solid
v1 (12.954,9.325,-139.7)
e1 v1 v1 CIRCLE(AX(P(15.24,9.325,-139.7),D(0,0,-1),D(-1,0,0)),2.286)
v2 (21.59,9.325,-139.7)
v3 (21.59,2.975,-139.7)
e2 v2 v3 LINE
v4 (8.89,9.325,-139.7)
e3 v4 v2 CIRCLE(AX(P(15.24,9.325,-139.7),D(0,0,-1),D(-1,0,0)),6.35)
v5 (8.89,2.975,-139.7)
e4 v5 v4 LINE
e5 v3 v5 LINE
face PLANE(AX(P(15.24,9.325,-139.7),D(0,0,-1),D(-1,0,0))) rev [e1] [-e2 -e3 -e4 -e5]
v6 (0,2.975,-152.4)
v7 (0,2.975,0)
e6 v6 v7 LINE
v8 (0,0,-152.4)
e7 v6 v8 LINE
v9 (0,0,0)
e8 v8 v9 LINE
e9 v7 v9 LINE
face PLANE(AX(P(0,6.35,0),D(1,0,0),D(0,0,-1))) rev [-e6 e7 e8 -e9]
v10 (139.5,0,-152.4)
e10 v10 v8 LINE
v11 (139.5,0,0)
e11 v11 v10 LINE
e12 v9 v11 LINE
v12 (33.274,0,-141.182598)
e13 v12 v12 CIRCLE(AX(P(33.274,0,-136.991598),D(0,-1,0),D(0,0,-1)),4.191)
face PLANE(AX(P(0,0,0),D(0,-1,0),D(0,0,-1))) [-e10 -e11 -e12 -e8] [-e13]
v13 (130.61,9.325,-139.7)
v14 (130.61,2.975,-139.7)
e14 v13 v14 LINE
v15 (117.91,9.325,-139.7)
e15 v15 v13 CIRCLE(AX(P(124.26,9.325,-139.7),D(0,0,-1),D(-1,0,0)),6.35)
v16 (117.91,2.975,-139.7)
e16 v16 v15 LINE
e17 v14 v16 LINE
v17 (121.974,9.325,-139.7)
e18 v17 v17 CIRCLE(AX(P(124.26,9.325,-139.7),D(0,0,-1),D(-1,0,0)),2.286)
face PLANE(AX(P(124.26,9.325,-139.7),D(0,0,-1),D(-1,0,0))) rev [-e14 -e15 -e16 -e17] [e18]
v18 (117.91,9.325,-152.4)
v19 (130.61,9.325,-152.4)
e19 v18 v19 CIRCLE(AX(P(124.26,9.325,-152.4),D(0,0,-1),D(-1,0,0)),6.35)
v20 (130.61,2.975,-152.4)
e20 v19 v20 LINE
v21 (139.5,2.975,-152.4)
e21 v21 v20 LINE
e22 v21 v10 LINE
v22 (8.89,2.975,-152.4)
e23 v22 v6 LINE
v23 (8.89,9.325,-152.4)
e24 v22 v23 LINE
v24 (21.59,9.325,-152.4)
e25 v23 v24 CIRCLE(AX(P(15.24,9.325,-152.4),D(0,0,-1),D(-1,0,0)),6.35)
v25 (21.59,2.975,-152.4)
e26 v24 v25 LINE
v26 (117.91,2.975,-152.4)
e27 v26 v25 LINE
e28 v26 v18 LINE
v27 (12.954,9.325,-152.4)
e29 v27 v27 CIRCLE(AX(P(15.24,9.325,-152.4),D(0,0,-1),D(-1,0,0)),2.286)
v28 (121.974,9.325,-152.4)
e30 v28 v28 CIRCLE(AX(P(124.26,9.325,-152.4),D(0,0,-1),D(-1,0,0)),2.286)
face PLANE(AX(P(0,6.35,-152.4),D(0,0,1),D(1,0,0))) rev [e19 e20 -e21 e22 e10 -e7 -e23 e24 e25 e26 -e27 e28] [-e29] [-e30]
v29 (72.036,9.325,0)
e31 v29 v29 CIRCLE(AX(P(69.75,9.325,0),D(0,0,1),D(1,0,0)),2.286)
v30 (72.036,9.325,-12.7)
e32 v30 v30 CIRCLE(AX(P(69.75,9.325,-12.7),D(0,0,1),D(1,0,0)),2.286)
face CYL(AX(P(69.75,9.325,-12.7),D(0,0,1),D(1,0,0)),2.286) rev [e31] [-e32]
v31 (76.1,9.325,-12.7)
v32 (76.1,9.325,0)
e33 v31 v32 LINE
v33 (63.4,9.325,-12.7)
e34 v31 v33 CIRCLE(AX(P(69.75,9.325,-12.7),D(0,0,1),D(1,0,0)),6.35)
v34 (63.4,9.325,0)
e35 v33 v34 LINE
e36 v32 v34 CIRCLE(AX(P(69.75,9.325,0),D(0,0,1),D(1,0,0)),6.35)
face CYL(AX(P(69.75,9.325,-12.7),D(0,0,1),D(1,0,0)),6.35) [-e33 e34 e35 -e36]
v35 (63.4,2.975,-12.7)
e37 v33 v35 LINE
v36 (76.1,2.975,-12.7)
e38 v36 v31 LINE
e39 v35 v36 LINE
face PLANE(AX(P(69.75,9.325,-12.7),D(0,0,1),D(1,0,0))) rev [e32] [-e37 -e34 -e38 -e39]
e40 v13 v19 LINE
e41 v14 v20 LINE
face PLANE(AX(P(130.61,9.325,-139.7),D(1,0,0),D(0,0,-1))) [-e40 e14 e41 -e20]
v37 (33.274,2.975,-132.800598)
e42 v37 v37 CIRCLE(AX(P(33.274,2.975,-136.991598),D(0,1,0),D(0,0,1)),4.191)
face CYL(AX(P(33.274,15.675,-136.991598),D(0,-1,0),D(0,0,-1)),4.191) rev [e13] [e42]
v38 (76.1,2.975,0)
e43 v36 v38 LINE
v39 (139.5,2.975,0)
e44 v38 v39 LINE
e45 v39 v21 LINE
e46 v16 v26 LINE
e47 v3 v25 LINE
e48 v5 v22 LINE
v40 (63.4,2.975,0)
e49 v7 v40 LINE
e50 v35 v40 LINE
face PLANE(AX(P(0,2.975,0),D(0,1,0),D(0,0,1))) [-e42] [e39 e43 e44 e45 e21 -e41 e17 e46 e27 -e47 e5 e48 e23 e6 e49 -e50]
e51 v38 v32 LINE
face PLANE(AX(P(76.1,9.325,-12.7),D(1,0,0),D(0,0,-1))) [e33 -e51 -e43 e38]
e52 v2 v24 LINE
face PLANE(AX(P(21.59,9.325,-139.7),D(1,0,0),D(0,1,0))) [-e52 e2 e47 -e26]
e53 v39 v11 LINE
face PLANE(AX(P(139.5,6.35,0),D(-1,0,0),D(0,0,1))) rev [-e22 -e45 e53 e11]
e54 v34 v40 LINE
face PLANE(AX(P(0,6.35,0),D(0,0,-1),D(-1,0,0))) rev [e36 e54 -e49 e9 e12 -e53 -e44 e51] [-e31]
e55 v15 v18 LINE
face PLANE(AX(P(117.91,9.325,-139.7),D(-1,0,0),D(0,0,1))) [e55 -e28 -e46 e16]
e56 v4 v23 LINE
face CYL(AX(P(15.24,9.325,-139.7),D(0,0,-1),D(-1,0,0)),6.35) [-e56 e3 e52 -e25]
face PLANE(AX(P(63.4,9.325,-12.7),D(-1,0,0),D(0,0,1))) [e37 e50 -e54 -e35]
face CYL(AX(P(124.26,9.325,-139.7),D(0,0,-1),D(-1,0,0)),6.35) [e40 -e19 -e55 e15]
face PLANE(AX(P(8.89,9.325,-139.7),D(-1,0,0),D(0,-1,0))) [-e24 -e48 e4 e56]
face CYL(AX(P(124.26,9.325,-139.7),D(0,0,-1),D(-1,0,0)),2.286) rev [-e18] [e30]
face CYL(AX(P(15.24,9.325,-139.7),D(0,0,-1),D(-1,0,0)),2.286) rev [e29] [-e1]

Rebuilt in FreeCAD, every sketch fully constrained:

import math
import FreeCAD as App
import Part
import Sketcher

V = App.Vector
Q = App.Units.Quantity


def add_polygon(sketch, points):
    """Adds a closed chain of lines whose ends are joined by coincident constraints."""
    first, n = sketch.GeometryCount, len(points)
    for a, b in zip(points, points[1:] + points[:1]):
        sketch.addGeometry(Part.LineSegment(App.Vector(*a, 0), App.Vector(*b, 0)), False)
    for i in range(n):
        sketch.addConstraint(Sketcher.Constraint("Coincident", first + i, 2, first + (i + 1) % n, 1))

doc = App.newDocument("Part")
body = doc.addObject("PartDesign::Body", "Body")

sketch1 = doc.addObject("Sketcher::SketchObject", "Sketch")
body.addObject(sketch1)
sketch1.AttachmentSupport = (doc.XZ_Plane, [""])
sketch1.MapMode = "FlatFace"
add_polygon(sketch1, [(0, -152.4), (0, 0), (139.5, 0), (139.5, -152.4)])
sketch1.addConstraint([
    Sketcher.Constraint("Vertical", 0),
    Sketcher.Constraint("Horizontal", 1),
    Sketcher.Constraint("Vertical", 2),
    Sketcher.Constraint("Horizontal", 3),
    Sketcher.Constraint("Coincident", 0, 2, -1, 1),
    Sketcher.Constraint("DistanceY", 0, 1, 0, 2, Q("6 in")),
    Sketcher.Constraint("DistanceX", 1, 1, 1, 2, Q("139.5 mm")),
])
pad1 = doc.addObject("PartDesign::Pad", "Pad")
body.addObject(pad1)
pad1.Profile = sketch1
pad1.Length = Q("0.25 in")
pad1.Reversed = True

sketch2 = doc.addObject("Sketcher::SketchObject", "Sketch001")
body.addObject(sketch2)
sketch2.AttachmentSupport = (doc.XZ_Plane, [""])
sketch2.MapMode = "FlatFace"
sketch2.AttachmentOffset = App.Placement(V(0, 0, -0.25 * 25.4), App.Rotation())
add_polygon(sketch2, [(0, -152.4), (0, 0), (139.5, 0), (139.5, -152.4)])
sketch2.addConstraint([
    Sketcher.Constraint("Vertical", 0),
    Sketcher.Constraint("Horizontal", 1),
    Sketcher.Constraint("Vertical", 2),
    Sketcher.Constraint("Horizontal", 3),
    Sketcher.Constraint("Coincident", 0, 2, -1, 1),
    Sketcher.Constraint("DistanceY", 0, 1, 0, 2, Q("6 in")),
    Sketcher.Constraint("DistanceX", 1, 1, 1, 2, Q("139.5 mm")),
])
pocket1 = doc.addObject("PartDesign::Pocket", "Pocket")
body.addObject(pocket1)
pocket1.Profile = sketch2
pocket1.Length = 3.375
pocket1.Reversed = True

sketch3 = doc.addObject("Sketcher::SketchObject", "Sketch002")
body.addObject(sketch3)
sketch3.AttachmentSupport = (doc.XY_Plane, [""])
sketch3.MapMode = "FlatFace"
sketch3.addGeometry([
    Part.LineSegment(V(63.4, 9.325, 0), V(63.4, 2.975, 0)),
    Part.LineSegment(V(63.4, 2.975, 0), V(76.1, 2.975, 0)),
    Part.LineSegment(V(76.1, 2.975, 0), V(76.1, 9.325, 0)),
    Part.ArcOfCircle(Part.Circle(V(69.75, 9.325, 0), V(0, 0, 1), 6.35), math.radians(0), math.radians(180.000001)),
    Part.Circle(V(69.75, 9.325, 0), V(0, 0, 1), 2.286),
], False)
sketch3.addConstraint([
    Sketcher.Constraint("Coincident", 0, 2, 1, 1),
    Sketcher.Constraint("Coincident", 1, 2, 2, 1),
    Sketcher.Constraint("Tangent", 2, 2, 3, 1),
    Sketcher.Constraint("Tangent", 3, 2, 0, 1),
    Sketcher.Constraint("Vertical", 0),
    Sketcher.Constraint("Horizontal", 1),
    Sketcher.Constraint("Vertical", 2),
    Sketcher.Constraint("Coincident", 4, 3, 3, 3),
    Sketcher.Constraint("Diameter", 4, Q("0.18 in")),
    Sketcher.Constraint("Radius", 3, Q("0.25 in")),
    Sketcher.Constraint("DistanceY", 0, 2, 0, 1, Q("0.25 in")),
    Sketcher.Constraint("DistanceX", -1, 1, 3, 3, Q("69.75 mm")),
    Sketcher.Constraint("DistanceY", -1, 1, 3, 3, Q("9.325 mm")),
])
pad2 = doc.addObject("PartDesign::Pad", "Pad001")
body.addObject(pad2)
pad2.Profile = sketch3
pad2.Length = Q("0.5 in")
pad2.Reversed = True

sketch4 = doc.addObject("Sketcher::SketchObject", "Sketch003")
body.addObject(sketch4)
sketch4.AttachmentSupport = (doc.XY_Plane, [""])
sketch4.MapMode = "FlatFace"
sketch4.AttachmentOffset = App.Placement(V(0, 0, -6 * 25.4), App.Rotation())
sketch4.addGeometry([
    Part.LineSegment(V(130.61, 9.325, 0), V(130.61, 2.975, 0)),
    Part.LineSegment(V(130.61, 2.975, 0), V(117.91, 2.975, 0)),
    Part.LineSegment(V(117.91, 2.975, 0), V(117.91, 9.325, 0)),
    Part.ArcOfCircle(Part.Circle(V(124.26, 9.325, 0), V(0, 0, 1), 6.35), math.radians(0), math.radians(180)),
    Part.Circle(V(124.26, 9.325, 0), V(0, 0, 1), 2.286),
    Part.LineSegment(V(21.59, 9.325, 0), V(21.59, 2.975, 0)),
    Part.LineSegment(V(21.59, 2.975, 0), V(8.89, 2.975, 0)),
    Part.LineSegment(V(8.89, 2.975, 0), V(8.89, 9.325, 0)),
    Part.ArcOfCircle(Part.Circle(V(15.24, 9.325, 0), V(0, 0, 1), 6.35), math.radians(0), math.radians(180)),
    Part.Circle(V(15.24, 9.325, 0), V(0, 0, 1), 2.286),
], False)
sketch4.addConstraint([
    Sketcher.Constraint("Coincident", 0, 2, 1, 1),
    Sketcher.Constraint("Coincident", 1, 2, 2, 1),
    Sketcher.Constraint("Tangent", 2, 2, 3, 2),
    Sketcher.Constraint("Tangent", 3, 1, 0, 1),
    Sketcher.Constraint("Coincident", 5, 2, 6, 1),
    Sketcher.Constraint("Coincident", 6, 2, 7, 1),
    Sketcher.Constraint("Tangent", 7, 2, 8, 2),
    Sketcher.Constraint("Tangent", 8, 1, 5, 1),
    Sketcher.Constraint("Vertical", 0),
    Sketcher.Constraint("Horizontal", 1),
    Sketcher.Constraint("Vertical", 2),
    Sketcher.Constraint("Vertical", 5),
    Sketcher.Constraint("Horizontal", 6),
    Sketcher.Constraint("Vertical", 7),
    Sketcher.Constraint("Coincident", 4, 3, 3, 3),
    Sketcher.Constraint("Coincident", 9, 3, 8, 3),
    Sketcher.Constraint("Equal", 3, 8),
    Sketcher.Constraint("Equal", 4, 9),
    Sketcher.Constraint("Horizontal", 4, 3, 8, 3),
    Sketcher.Constraint("Horizontal", 1, 2, 5, 2),
    Sketcher.Constraint("Diameter", 4, Q("0.18 in")),
    Sketcher.Constraint("Radius", 3, Q("0.25 in")),
    Sketcher.Constraint("DistanceY", 0, 2, 0, 1, Q("0.25 in")),
    Sketcher.Constraint("DistanceX", -1, 1, 8, 3, Q("0.6 in")),
    Sketcher.Constraint("DistanceX", -1, 1, 3, 3, Q("124.26 mm")),
    Sketcher.Constraint("DistanceY", -1, 1, 3, 3, Q("9.325 mm")),
])
pad3 = doc.addObject("PartDesign::Pad", "Pad002")
body.addObject(pad3)
pad3.Profile = sketch4
pad3.Length = Q("0.5 in")

sketch5 = doc.addObject("Sketcher::SketchObject", "Sketch004")
body.addObject(sketch5)
sketch5.AttachmentSupport = (doc.XZ_Plane, [""])
sketch5.MapMode = "FlatFace"
sketch5.addGeometry(Part.Circle(V(33.274, -136.991598, 0), V(0, 0, 1), 4.191), False)
sketch5.addConstraint([
    Sketcher.Constraint("Diameter", 0, Q("0.33 in")),
    Sketcher.Constraint("DistanceX", -1, 1, 0, 3, Q("1.31 in")),
    Sketcher.Constraint("DistanceY", 0, 3, -1, 1, Q("136.991598 mm")),
])
pocket2 = doc.addObject("PartDesign::Pocket", "Pocket001")
body.addObject(pocket2)
pocket2.Profile = sketch5
pocket2.Type = "ThroughAll"

doc.recompute()
